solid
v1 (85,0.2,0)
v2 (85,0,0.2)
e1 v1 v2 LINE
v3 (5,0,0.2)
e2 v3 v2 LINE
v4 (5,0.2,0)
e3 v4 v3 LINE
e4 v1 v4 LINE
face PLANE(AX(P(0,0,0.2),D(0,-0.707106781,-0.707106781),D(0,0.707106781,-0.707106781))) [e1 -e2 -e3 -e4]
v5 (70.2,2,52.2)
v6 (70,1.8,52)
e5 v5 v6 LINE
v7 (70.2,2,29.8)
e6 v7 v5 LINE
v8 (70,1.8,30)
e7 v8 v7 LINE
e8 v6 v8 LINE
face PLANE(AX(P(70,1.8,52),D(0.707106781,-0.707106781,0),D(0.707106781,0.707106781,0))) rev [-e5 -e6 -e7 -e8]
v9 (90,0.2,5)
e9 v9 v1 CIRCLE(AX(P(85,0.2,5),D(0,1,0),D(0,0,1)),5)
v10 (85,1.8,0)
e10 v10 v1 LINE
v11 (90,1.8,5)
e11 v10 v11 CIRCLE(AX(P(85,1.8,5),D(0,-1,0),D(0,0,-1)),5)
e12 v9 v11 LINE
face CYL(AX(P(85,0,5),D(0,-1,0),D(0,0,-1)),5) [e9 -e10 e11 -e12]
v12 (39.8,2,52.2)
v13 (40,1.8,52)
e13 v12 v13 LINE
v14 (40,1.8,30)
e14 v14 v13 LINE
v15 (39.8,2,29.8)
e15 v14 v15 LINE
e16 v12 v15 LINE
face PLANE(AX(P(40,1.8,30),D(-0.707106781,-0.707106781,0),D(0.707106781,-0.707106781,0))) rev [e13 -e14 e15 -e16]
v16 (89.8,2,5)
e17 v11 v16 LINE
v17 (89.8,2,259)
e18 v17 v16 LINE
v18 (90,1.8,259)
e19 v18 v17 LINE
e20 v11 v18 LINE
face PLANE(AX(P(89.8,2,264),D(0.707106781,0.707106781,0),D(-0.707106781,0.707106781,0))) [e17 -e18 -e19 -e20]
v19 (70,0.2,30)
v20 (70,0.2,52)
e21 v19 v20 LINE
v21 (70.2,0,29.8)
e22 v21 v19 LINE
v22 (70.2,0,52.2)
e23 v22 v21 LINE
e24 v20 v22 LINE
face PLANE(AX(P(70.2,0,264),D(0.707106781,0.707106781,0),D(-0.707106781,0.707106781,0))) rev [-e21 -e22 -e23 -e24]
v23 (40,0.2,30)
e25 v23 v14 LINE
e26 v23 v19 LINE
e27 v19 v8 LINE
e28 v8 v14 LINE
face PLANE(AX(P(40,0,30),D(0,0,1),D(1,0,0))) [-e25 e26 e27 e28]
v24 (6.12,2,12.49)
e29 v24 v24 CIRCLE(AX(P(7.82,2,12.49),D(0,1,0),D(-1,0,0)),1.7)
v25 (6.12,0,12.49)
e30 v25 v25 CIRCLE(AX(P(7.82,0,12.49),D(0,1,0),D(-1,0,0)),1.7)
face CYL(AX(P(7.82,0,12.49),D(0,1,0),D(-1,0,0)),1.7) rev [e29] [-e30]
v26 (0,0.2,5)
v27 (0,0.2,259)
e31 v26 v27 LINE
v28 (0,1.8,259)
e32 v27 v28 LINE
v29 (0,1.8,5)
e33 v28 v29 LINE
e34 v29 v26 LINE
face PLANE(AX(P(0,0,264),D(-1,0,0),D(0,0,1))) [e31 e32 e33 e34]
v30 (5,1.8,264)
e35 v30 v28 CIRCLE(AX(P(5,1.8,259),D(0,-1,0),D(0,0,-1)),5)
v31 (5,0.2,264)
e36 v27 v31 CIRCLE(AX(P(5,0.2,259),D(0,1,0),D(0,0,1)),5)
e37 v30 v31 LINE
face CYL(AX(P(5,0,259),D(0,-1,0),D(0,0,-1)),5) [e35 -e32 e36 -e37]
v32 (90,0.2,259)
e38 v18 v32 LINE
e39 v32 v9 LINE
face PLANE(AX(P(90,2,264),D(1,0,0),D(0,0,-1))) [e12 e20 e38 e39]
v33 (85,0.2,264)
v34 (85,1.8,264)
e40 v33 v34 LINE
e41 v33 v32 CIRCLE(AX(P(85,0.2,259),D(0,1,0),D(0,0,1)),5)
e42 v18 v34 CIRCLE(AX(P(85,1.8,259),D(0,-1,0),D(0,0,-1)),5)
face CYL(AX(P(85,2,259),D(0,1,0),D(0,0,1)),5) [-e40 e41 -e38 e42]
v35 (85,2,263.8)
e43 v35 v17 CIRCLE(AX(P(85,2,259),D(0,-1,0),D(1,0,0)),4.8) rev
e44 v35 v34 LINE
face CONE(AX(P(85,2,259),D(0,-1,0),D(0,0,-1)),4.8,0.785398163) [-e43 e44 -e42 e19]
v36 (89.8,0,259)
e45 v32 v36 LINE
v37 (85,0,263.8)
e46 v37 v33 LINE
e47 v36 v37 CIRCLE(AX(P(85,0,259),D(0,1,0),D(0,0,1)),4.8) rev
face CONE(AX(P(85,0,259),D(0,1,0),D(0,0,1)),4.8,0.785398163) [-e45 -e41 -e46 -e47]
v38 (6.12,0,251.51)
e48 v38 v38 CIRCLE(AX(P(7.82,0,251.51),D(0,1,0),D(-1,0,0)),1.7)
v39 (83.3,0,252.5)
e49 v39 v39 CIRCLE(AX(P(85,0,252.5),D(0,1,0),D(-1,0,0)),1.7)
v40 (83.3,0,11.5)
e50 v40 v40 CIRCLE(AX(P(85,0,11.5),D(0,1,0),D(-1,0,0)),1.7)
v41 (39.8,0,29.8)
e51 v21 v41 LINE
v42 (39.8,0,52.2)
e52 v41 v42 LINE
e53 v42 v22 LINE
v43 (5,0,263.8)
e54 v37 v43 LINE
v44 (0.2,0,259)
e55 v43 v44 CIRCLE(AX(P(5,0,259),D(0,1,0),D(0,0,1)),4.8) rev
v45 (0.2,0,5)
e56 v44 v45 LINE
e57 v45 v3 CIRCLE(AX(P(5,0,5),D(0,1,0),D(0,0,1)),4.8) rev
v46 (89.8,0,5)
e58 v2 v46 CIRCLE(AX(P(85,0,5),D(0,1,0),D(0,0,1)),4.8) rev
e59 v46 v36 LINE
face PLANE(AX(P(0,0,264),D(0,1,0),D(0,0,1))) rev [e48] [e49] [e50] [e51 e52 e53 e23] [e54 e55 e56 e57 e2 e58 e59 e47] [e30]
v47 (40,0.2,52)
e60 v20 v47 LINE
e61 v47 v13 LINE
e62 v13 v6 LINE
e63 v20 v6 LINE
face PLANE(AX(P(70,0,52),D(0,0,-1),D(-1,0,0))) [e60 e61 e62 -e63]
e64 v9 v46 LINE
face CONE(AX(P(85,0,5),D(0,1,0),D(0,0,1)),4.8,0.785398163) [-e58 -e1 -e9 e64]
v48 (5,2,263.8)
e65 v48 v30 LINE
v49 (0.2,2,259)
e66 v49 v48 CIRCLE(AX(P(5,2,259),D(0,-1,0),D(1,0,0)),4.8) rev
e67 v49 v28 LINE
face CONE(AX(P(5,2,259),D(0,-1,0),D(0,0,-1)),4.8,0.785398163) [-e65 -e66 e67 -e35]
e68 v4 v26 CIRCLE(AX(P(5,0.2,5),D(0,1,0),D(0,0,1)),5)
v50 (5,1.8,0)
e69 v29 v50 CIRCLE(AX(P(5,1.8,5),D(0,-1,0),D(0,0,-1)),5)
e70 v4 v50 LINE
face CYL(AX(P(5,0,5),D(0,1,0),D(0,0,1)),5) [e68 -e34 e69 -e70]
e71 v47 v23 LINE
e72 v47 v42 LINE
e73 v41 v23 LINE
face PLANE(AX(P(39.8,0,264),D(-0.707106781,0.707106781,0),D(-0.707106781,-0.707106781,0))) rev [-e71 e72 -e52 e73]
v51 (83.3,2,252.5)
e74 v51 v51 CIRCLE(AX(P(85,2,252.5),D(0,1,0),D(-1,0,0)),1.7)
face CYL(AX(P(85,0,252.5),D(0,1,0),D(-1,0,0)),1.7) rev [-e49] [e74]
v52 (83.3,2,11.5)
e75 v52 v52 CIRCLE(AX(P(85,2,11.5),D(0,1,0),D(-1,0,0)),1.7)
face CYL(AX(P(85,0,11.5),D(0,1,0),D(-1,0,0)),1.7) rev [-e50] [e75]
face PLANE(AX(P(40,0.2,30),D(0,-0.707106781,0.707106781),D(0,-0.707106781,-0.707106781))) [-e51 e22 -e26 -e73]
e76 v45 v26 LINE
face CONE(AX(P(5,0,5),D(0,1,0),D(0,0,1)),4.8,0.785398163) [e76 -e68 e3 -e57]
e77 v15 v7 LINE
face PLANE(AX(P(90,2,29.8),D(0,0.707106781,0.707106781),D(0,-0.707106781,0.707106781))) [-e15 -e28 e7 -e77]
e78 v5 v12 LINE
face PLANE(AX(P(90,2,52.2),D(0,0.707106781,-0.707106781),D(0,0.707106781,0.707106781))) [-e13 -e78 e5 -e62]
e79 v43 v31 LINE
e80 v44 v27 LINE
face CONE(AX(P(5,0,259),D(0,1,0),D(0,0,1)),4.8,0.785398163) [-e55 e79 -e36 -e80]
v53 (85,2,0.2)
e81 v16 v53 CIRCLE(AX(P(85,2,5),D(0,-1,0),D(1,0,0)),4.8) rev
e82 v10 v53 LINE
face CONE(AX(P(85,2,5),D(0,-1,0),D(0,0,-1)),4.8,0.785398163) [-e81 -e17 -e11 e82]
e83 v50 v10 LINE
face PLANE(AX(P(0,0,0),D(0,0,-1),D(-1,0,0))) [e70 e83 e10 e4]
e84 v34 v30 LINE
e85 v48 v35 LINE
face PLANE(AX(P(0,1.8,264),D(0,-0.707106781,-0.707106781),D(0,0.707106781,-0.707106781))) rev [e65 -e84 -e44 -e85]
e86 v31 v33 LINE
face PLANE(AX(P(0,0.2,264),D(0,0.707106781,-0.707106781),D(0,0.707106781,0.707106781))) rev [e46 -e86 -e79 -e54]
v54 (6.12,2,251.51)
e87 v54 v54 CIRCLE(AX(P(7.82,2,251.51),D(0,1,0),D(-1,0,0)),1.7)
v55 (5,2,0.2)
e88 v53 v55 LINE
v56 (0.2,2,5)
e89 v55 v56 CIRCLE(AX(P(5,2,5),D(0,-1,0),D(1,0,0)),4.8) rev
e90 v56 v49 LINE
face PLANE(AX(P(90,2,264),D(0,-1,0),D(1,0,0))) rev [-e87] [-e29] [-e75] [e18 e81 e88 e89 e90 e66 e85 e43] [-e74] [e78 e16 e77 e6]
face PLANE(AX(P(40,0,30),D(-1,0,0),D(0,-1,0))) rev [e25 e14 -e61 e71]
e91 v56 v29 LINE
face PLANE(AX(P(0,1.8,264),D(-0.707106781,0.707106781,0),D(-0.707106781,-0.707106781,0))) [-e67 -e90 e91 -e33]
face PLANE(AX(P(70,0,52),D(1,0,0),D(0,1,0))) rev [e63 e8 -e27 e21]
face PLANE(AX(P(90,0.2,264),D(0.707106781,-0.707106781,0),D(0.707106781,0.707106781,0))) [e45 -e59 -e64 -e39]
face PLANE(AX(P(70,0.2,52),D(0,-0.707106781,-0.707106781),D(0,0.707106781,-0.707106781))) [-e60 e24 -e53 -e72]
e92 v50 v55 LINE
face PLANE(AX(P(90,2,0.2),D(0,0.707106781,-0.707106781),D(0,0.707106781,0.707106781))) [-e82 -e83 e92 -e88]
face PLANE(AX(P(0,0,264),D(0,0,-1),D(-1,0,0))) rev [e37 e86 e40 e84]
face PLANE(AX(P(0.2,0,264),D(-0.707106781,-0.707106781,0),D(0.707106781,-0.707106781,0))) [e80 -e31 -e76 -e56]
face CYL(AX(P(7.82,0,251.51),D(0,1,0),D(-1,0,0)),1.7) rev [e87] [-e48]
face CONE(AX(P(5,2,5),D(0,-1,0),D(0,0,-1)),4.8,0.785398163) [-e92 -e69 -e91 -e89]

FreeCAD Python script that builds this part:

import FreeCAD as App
import Part
import Sketcher

V = App.Vector
Q = App.Units.Quantity


def edges_at(feature, points):
    """Names of the edges that pass closest to the given points."""
    edges = feature.Shape.Edges
    near = lambda p: min(range(len(edges)), key=lambda i: edges[i].distToShape(Part.Vertex(*p))[0])
    return sorted({f"Edge{near(p) + 1}" for p in points})


def add_polygon(sketch, points):
    """Adds a closed chain of lines whose ends are joined by coincident constraints."""
    first, n = sketch.GeometryCount, len(points)
    for a, b in zip(points, points[1:] + points[:1]):
        sketch.addGeometry(Part.LineSegment(App.Vector(*a, 0), App.Vector(*b, 0)), False)
    for i in range(n):
        sketch.addConstraint(Sketcher.Constraint("Coincident", first + i, 2, first + (i + 1) % n, 1))

doc = App.newDocument("Part")
body = doc.addObject("PartDesign::Body", "Body")

sketch1 = body.newObject("Sketcher::SketchObject", "Sketch")
sketch1.AttachmentSupport = (doc.getObject("XY_Plane"), [""])
sketch1.MapMode = "FlatFace"
add_polygon(sketch1, [(0, 2), (0, 0), (90, 0), (90, 2)])
sketch1.addConstraint(Sketcher.Constraint("Vertical", 0))
sketch1.addConstraint(Sketcher.Constraint("Horizontal", 1))
sketch1.addConstraint(Sketcher.Constraint("Vertical", 2))
sketch1.addConstraint(Sketcher.Constraint("Horizontal", 3))
sketch1.addConstraint(Sketcher.Constraint("Coincident", 0, 2, -1, 1))
sketch1.addConstraint(Sketcher.Constraint("DistanceX", 1, 1, 1, 2, Q("90 mm")))
sketch1.addConstraint(Sketcher.Constraint("DistanceY", 0, 2, 0, 1, Q("2 mm")))
pad1 = body.newObject("PartDesign::Pad", "Pad")
pad1.Profile = sketch1
pad1.Length = 264

sketch2 = body.newObject("Sketcher::SketchObject", "Sketch001")
sketch2.AttachmentSupport = (doc.getObject("XZ_Plane"), [""])
sketch2.MapMode = "FlatFace"
sketch2.AttachmentOffset = App.Placement(V(0, 0, -2), App.Rotation())
add_polygon(sketch2, [(70, 52), (70, 30), (40, 30), (40, 52)])
sketch2.addConstraint(Sketcher.Constraint("Vertical", 0))
sketch2.addConstraint(Sketcher.Constraint("Horizontal", 1))
sketch2.addConstraint(Sketcher.Constraint("Vertical", 2))
sketch2.addConstraint(Sketcher.Constraint("Horizontal", 3))
sketch2.addConstraint(Sketcher.Constraint("DistanceX", 1, 2, 1, 1, Q("30 mm")))
sketch2.addConstraint(Sketcher.Constraint("DistanceY", 0, 2, 0, 1, Q("22 mm")))
sketch2.addConstraint(Sketcher.Constraint("DistanceX", -1, 1, 0, 2, Q("70 mm")))
sketch2.addConstraint(Sketcher.Constraint("DistanceY", -1, 1, 0, 2, Q("30 mm")))
pocket1 = body.newObject("PartDesign::Pocket", "Pocket")
pocket1.Profile = sketch2
pocket1.Type = "ThroughAll"
pocket1.Reversed = True
doc.recompute()

fillet = body.newObject("PartDesign::Fillet", "Fillet")
fillet.Base = (pocket1, edges_at(pocket1, [
    (0, 1, 0),
    (0, 1, 264),
    (90, 1, 0),
    (90, 1, 264),
]))
fillet.Radius = 5
doc.recompute()

chamfer = body.newObject("PartDesign::Chamfer", "Chamfer")
chamfer.Base = (fillet, edges_at(fillet, [
    (0, 0, 132),
    (1.464, 0, 1.464),
    (1.464, 0, 262.536),
    (45, 0, 0),
    (45, 0, 264),
    (88.536, 0, 1.464),
    (88.536, 0, 262.536),
    (90, 0, 132),
    (70, 0, 41),
    (55, 0, 30),
    (40, 0, 41),
    (55, 0, 52),
    (0, 2, 132),
    (1.464, 2, 1.464),
    (1.464, 2, 262.536),
    (45, 2, 0),
    (45, 2, 264),
    (88.536, 2, 1.464),
    (88.536, 2, 262.536),
    (90, 2, 132),
    (70, 2, 41),
    (55, 2, 30),
    (40, 2, 41),
    (55, 2, 52),
]))
chamfer.Size = 0.2

sketch3 = body.newObject("Sketcher::SketchObject", "Sketch002")
sketch3.AttachmentSupport = (doc.getObject("XZ_Plane"), [""])
sketch3.MapMode = "FlatFace"
sketch3.AttachmentOffset = App.Placement(V(0, 0, -2), App.Rotation())
sketch3.addGeometry(Part.Circle(V(7.8, 251.5, 0), V(0, 0, 1), 1.7), False)
sketch3.addGeometry(Part.Circle(V(7.8, 12.5, 0), V(0, 0, 1), 1.7), False)
sketch3.addGeometry(Part.Circle(V(85, 252.5, 0), V(0, 0, 1), 1.7), False)
sketch3.addGeometry(Part.Circle(V(85, 11.5, 0), V(0, 0, 1), 1.7), False)
sketch3.addConstraint(Sketcher.Constraint("Equal", 0, 1))
sketch3.addConstraint(Sketcher.Constraint("Equal", 1, 2))
sketch3.addConstraint(Sketcher.Constraint("Equal", 2, 3))
sketch3.addConstraint(Sketcher.Constraint("Vertical", 0, 3, 1, 3))
sketch3.addConstraint(Sketcher.Constraint("Vertical", 2, 3, 3, 3))
sketch3.addConstraint(Sketcher.Constraint("Diameter", 0, Q("3.4 mm")))
sketch3.addConstraint(Sketcher.Constraint("DistanceX", -1, 1, 2, 3, Q("85 mm")))
sketch3.addConstraint(Sketcher.Constraint("DistanceY", 3, 3, 2, 3, Q("241 mm")))
sketch3.addConstraint(Sketcher.Constraint("DistanceY", -1, 1, 2, 3, Q("252.5 mm")))
sketch3.addConstraint(Sketcher.Constraint("DistanceX", -1, 1, 0, 3, Q("7.82 mm")))
sketch3.addConstraint(Sketcher.Constraint("DistanceY", -1, 1, 0, 3, Q("251.51 mm")))
sketch3.addConstraint(Sketcher.Constraint("DistanceY", -1, 1, 1, 3, Q("12.49 mm")))
pocket2 = body.newObject("PartDesign::Pocket", "Pocket001")
pocket2.Profile = sketch3
pocket2.Type = "ThroughAll"
pocket2.Reversed = True

doc.recompute()
